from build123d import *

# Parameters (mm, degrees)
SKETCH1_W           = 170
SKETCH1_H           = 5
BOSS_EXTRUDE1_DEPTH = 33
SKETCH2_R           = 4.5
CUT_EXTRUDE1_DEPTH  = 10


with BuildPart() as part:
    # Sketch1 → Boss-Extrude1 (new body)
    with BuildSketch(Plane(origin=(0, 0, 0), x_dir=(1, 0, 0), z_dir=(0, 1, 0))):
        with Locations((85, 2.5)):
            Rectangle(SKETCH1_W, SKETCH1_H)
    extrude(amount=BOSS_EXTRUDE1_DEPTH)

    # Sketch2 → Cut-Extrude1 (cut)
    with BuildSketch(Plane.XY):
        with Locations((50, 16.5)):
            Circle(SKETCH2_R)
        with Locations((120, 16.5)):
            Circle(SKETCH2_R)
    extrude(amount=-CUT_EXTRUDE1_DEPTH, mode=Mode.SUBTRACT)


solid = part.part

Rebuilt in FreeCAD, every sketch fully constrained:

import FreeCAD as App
import Part
import Sketcher
from FreeCAD import Vector
Q = App.Units.Quantity


def add_polygon(sketch, points):
    """Adds a closed chain of lines whose ends are joined by coincident constraints."""
    first, n = sketch.GeometryCount, len(points)
    for a, b in zip(points, points[1:] + points[:1]):
        sketch.addGeometry(Part.LineSegment(App.Vector(*a, 0), App.Vector(*b, 0)), False)
    for i in range(n):
        sketch.addConstraint(Sketcher.Constraint("Coincident", first + i, 2, first + (i + 1) % n, 1))

doc = App.newDocument("Part")
params = doc.addObject("Spreadsheet::Sheet", "Params")
for row, (alias, value) in enumerate([
    ("sketch1_width", "170 mm"),
    ("sketch1_height", "5 mm"),
    ("pad1_length", "33 mm"),
    ("sketch2_diameter", "9 mm"),
    ("pocket1_length", "10 mm"),
], start=1):
    params.set(f"A{row}", alias)
    params.set(f"B{row}", "=" + value)
    params.setAlias(f"B{row}", alias)

body = doc.addObject("PartDesign::Body", "Body")

# Sketch on XZ plane
sketch1 = doc.addObject("Sketcher::SketchObject", "Sketch")
body.addObject(sketch1)
sketch1.AttachmentSupport = (doc.XZ_Plane, [""])
sketch1.MapMode = "FlatFace"
add_polygon(sketch1, [(0, -5), (0, 0), (170, 0), (170, -5)])  # lines 0-3
sketch1.addConstraint(Sketcher.Constraint("Vertical", 0))
sketch1.addConstraint(Sketcher.Constraint("Horizontal", 1))
sketch1.addConstraint(Sketcher.Constraint("Vertical", 2))
sketch1.addConstraint(Sketcher.Constraint("Horizontal", 3))
sketch1.addConstraint(Sketcher.Constraint("Coincident", 0, 2, -1, 1))
sketch1.addConstraint(Sketcher.Constraint("DistanceX", 1, 1, 1, 2, Q("170 mm")))
sketch1.addConstraint(Sketcher.Constraint("DistanceY", 0, 1, 0, 2, Q("5 mm")))
sketch1.setExpression("Constraints[9]", "Params.sketch1_width")
sketch1.setExpression("Constraints[10]", "Params.sketch1_height")
pad1 = doc.addObject("PartDesign::Pad", "Pad")
body.addObject(pad1)
pad1.Profile = sketch1
pad1.setExpression("Length", "Params.pad1_length")
pad1.Reversed = True

# Sketch on XY plane
sketch2 = doc.addObject("Sketcher::SketchObject", "Sketch001")
body.addObject(sketch2)
sketch2.AttachmentSupport = (doc.XY_Plane, [""])
sketch2.MapMode = "FlatFace"
sketch2.addGeometry(Part.Circle(Vector(50, 16.5, 0), Vector(0, 0, 1), 4.5), False)
sketch2.addGeometry(Part.Circle(Vector(120, 16.5, 0), Vector(0, 0, 1), 4.5), False)
sketch2.addConstraint(Sketcher.Constraint("Equal", 0, 1))
sketch2.addConstraint(Sketcher.Constraint("Horizontal", 0, 3, 1, 3))
sketch2.addConstraint(Sketcher.Constraint("Diameter", 0, Q("9 mm")))
sketch2.addConstraint(Sketcher.Constraint("DistanceX", -1, 1, 0, 3, Q("50 mm")))
sketch2.addConstraint(Sketcher.Constraint("DistanceX", -1, 1, 1, 3, Q("120 mm")))
sketch2.addConstraint(Sketcher.Constraint("DistanceY", -1, 1, 0, 3, Q("16.5 mm")))
sketch2.setExpression("Constraints[2]", "Params.sketch2_diameter")
pocket1 = doc.addObject("PartDesign::Pocket", "Pocket")
body.addObject(pocket1)
pocket1.Profile = sketch2
pocket1.setExpression("Length", "Params.pocket1_length")

doc.recompute()
